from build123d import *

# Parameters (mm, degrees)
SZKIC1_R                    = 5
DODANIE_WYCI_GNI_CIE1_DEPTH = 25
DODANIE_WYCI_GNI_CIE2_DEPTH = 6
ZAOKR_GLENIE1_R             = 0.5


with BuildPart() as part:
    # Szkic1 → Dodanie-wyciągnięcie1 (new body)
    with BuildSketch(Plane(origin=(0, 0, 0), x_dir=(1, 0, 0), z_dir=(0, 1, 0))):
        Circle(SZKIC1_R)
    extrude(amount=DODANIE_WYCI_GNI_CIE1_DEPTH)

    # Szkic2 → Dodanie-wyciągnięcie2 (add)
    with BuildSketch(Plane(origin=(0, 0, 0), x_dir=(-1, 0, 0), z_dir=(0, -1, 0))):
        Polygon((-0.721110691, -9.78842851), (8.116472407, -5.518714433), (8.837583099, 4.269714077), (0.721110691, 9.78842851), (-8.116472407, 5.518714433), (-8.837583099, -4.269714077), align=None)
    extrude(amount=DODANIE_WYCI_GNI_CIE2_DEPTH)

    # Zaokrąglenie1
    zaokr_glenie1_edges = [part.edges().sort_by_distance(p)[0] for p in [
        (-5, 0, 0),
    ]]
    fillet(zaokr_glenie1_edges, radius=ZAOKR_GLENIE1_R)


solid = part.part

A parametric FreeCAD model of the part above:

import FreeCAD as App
import Part
import Sketcher
from FreeCAD import Vector
Q = App.Units.Quantity


def edges_at(feature, points):
    """Names of the edges that pass closest to the given points."""
    edges = feature.Shape.Edges
    near = lambda p: min(range(len(edges)), key=lambda i: edges[i].distToShape(Part.Vertex(*p))[0])
    return sorted({f"Edge{near(p) + 1}" for p in points})

doc = App.newDocument("Part")
body = doc.addObject("PartDesign::Body", "Body")

# Sketch on XZ plane
sketch1 = body.newObject("Sketcher::SketchObject", "Sketch")
sketch1.AttachmentSupport = (doc.getObject("XZ_Plane"), [""])
sketch1.MapMode = "FlatFace"
sketch1.addGeometry(Part.Circle(Vector(0, 0, 0), Vector(0, 0, 1), 5), False)
sketch1.addConstraint([
    Sketcher.Constraint("Coincident", 0, 3, -1, 1),
    Sketcher.Constraint("Diameter", 0, Q("10 mm")),
])
pad1 = body.newObject("PartDesign::Pad", "Pad")
pad1.Profile = sketch1
pad1.Length = 25
pad1.Reversed = True

# Sketch on XZ plane
sketch2 = body.newObject("Sketcher::SketchObject", "Sketch001")
sketch2.AttachmentSupport = (doc.getObject("XZ_Plane"), [""])
sketch2.MapMode = "FlatFace"
sketch2.addGeometry([
    Part.LineSegment(Vector(1, 10, 0), Vector(-8, 6, 0)),  # 0
    Part.LineSegment(Vector(-8, 6, 0), Vector(-9, -4, 0)),  # 1
    Part.LineSegment(Vector(-9, -4, 0), Vector(-1, -10, 0)),  # 2
    Part.LineSegment(Vector(-1, -10, 0), Vector(8, -6, 0)),  # 3
    Part.LineSegment(Vector(8, -6, 0), Vector(9, 4, 0)),  # 4
    Part.LineSegment(Vector(9, 4, 0), Vector(1, 10, 0)),  # 5
], False)
sketch2.addConstraint([
    Sketcher.Constraint("Coincident", 0, 2, 1, 1),
    Sketcher.Constraint("Coincident", 1, 2, 2, 1),
    Sketcher.Constraint("Coincident", 2, 2, 3, 1),
    Sketcher.Constraint("Coincident", 3, 2, 4, 1),
    Sketcher.Constraint("Coincident", 4, 2, 5, 1),
    Sketcher.Constraint("Coincident", 5, 2, 0, 1),
    Sketcher.Constraint("Symmetric", 0, 2, 3, 2, -1, 1),
    Sketcher.Constraint("Symmetric", 1, 2, 4, 2, -1, 1),
    Sketcher.Constraint("Symmetric", 2, 2, 5, 2, -1, 1),
    Sketcher.Constraint("Equal", 0, 1),
    Sketcher.Constraint("Equal", 1, 2),
    Sketcher.Constraint("DistanceY", 3, 2, 1, 2, Q("1.249 mm")),
    Sketcher.Constraint("DistanceX", 2, 2, -1, 1, Q("0.721111 mm")),
    Sketcher.Constraint("DistanceY", 2, 2, -1, 1, Q("9.788429 mm")),
    Sketcher.Constraint("DistanceX", 1, 2, 0, 2, Q("0.721111 mm")),
])
pad2 = body.newObject("PartDesign::Pad", "Pad001")
pad2.Profile = sketch2
pad2.Length = 6
doc.recompute()

fillet = body.newObject("PartDesign::Fillet", "Fillet")
fillet.Base = (pad2, edges_at(pad2, [(-5, 0, 0)]))
fillet.Radius = 0.5

doc.recompute()
